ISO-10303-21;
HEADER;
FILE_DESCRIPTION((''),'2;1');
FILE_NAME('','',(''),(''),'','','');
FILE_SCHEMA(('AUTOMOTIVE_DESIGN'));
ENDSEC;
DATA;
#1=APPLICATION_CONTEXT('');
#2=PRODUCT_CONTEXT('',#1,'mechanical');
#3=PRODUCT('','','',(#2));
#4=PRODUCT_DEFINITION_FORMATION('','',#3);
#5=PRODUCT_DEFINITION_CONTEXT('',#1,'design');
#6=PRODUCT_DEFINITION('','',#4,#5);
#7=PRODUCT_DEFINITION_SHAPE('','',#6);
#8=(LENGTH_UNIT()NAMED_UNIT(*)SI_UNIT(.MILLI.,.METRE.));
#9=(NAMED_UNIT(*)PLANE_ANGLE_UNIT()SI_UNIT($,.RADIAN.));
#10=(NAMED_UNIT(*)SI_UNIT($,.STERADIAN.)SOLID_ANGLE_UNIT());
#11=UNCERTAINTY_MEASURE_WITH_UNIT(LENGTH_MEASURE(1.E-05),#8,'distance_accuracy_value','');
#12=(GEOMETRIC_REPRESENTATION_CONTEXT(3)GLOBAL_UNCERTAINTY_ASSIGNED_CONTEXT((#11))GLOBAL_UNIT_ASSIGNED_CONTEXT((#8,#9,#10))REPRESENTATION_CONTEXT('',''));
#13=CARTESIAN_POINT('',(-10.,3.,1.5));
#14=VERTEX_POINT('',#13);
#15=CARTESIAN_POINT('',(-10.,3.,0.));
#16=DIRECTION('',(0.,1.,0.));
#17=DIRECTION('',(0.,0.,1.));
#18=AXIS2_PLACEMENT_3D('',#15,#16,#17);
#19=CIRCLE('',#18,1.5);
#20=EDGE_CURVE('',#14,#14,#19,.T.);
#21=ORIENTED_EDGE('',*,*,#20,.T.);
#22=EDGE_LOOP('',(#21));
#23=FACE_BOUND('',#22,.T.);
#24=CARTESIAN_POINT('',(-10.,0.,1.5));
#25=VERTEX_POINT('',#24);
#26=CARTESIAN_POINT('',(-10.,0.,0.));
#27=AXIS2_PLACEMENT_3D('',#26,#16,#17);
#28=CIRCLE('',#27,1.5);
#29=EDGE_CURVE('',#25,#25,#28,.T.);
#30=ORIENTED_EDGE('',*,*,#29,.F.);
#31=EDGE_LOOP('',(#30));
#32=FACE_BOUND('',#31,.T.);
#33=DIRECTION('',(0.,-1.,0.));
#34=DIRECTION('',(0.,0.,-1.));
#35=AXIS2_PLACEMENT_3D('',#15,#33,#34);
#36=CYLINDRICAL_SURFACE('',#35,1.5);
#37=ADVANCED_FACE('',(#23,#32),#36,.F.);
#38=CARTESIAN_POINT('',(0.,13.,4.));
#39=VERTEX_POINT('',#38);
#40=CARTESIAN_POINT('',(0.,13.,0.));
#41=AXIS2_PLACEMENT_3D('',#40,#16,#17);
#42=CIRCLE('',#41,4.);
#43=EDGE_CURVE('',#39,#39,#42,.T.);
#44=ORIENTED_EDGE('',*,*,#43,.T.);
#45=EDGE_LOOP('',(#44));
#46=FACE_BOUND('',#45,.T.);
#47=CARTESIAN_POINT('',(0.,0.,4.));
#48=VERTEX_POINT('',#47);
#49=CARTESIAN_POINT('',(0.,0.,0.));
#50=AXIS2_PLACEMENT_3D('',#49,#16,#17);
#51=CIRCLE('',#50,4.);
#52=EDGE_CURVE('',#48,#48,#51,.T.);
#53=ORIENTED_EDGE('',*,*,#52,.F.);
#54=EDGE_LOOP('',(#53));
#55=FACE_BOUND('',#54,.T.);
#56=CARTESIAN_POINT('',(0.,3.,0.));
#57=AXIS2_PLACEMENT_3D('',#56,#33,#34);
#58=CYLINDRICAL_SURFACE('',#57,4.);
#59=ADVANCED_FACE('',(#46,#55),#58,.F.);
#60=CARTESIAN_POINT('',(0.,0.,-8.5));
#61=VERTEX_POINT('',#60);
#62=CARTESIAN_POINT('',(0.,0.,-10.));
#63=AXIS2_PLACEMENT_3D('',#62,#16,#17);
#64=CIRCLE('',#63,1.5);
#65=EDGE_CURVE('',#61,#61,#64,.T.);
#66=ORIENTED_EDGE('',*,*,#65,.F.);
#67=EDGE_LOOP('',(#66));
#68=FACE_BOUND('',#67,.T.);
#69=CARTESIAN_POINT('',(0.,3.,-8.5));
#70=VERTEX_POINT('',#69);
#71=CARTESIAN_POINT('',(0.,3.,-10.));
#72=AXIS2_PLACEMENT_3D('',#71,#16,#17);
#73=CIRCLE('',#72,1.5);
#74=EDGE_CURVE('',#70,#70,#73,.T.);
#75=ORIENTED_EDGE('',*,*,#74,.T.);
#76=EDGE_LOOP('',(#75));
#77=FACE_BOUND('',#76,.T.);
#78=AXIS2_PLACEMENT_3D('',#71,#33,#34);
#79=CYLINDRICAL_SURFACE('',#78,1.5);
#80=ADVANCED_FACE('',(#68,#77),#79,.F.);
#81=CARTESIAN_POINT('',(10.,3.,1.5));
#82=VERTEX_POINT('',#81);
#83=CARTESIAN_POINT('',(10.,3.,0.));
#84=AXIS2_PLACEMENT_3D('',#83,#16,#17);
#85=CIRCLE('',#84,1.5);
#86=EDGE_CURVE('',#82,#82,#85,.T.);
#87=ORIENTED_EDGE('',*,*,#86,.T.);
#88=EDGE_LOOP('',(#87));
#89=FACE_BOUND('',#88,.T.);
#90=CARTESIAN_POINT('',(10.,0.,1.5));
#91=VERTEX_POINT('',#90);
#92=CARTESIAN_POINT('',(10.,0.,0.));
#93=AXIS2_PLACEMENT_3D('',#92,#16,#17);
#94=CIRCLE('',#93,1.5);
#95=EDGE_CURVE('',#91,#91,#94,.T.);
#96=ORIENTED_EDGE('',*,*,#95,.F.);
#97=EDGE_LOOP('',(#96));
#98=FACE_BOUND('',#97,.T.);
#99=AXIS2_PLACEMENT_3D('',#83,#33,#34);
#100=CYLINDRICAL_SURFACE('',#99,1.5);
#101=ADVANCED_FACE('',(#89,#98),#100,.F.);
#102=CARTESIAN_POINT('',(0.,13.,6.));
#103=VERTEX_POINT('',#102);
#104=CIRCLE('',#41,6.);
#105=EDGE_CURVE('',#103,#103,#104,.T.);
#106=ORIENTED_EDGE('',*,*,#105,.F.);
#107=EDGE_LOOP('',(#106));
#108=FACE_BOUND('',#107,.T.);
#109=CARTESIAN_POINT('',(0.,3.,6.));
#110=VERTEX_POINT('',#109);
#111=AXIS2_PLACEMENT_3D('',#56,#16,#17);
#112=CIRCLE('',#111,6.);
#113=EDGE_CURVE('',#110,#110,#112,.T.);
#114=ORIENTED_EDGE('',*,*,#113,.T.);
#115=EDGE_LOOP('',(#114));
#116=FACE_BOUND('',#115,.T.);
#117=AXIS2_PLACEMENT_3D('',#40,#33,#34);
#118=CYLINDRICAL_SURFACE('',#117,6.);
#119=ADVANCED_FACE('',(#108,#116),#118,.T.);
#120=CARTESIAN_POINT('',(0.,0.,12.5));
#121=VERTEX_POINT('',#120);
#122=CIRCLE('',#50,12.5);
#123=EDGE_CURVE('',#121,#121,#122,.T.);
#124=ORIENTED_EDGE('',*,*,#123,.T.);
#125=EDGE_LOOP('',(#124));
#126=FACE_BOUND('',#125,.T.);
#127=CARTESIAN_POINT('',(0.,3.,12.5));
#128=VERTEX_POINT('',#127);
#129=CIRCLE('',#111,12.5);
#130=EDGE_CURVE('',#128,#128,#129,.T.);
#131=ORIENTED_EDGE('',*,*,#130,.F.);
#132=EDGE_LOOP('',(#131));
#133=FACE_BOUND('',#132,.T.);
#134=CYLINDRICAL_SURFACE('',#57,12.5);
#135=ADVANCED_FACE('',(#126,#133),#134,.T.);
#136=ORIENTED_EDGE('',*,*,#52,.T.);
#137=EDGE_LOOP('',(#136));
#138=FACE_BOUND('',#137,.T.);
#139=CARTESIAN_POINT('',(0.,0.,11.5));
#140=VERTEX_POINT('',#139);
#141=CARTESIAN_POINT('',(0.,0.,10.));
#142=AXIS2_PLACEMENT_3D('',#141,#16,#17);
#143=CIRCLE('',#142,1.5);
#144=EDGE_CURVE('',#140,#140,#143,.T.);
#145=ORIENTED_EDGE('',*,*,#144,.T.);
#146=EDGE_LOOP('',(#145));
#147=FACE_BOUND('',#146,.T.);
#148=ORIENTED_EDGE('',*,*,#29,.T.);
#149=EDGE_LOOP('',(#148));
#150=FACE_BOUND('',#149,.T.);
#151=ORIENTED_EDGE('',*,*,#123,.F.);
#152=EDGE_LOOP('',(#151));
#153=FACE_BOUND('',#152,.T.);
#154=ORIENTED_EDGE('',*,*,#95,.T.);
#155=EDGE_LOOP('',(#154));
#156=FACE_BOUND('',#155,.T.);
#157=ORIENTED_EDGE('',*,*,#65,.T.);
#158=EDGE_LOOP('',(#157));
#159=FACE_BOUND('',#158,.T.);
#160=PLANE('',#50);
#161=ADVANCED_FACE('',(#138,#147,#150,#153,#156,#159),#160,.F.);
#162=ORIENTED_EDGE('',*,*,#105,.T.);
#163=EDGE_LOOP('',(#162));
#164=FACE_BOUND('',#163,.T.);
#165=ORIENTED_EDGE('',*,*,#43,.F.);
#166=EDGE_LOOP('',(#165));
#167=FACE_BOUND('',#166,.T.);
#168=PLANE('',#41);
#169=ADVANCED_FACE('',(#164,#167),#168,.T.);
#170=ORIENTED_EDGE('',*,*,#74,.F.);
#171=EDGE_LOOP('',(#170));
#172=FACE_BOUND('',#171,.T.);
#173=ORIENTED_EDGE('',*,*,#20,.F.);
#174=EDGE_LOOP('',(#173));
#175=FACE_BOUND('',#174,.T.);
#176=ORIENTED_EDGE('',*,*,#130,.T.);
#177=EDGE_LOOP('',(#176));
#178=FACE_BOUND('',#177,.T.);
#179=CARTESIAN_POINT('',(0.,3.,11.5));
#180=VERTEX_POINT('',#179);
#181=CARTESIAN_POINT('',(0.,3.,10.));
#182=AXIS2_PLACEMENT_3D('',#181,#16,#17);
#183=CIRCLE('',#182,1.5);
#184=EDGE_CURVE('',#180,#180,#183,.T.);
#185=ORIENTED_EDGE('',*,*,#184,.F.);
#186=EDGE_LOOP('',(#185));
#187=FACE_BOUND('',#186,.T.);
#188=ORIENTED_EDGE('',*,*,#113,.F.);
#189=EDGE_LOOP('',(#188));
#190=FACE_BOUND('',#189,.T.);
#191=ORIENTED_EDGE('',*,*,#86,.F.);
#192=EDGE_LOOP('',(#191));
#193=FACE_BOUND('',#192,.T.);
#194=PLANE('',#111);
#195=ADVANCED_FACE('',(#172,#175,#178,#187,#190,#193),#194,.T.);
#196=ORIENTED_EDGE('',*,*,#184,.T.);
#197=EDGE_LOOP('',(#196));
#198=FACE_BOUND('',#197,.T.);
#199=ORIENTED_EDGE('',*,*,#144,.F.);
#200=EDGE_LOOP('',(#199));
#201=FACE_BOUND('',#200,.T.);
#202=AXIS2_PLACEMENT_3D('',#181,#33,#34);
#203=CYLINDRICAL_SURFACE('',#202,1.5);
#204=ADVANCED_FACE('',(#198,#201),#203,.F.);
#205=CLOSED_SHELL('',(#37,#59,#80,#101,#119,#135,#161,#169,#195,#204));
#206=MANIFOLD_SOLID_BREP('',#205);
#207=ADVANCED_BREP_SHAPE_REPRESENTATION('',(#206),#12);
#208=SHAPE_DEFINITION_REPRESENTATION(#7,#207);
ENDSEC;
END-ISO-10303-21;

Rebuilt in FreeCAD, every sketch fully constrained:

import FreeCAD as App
import Part
import Sketcher
from FreeCAD import Vector
Q = App.Units.Quantity

doc = App.newDocument("Part")
params = doc.addObject("Spreadsheet::Sheet", "Params")
for row, (alias, value) in enumerate([
    ("sketch1_diameter", "25 mm"),
    ("sketch1_diameter2", "3 mm"),
    ("sketch1_diameter3", "8 mm"),
    ("pad1_length", "3 mm"),
    ("sketch2_diameter", "12 mm"),
    ("sketch2_diameter2", "8 mm"),
    ("pad2_length", "10 mm"),
], start=1):
    params.set(f"A{row}", alias)
    params.set(f"B{row}", "=" + value)
    params.setAlias(f"B{row}", alias)

body = doc.addObject("PartDesign::Body", "Body")

# Sketch on XZ plane
sketch1 = body.newObject("Sketcher::SketchObject", "Sketch")
sketch1.AttachmentSupport = (doc.getObject("XZ_Plane"), [""])
sketch1.MapMode = "FlatFace"
sketch1.addGeometry(Part.Circle(Vector(0, 0, 0), Vector(0, 0, 1), 12.5), False)
sketch1.addGeometry(Part.Circle(Vector(0, -10, 0), Vector(0, 0, 1), 1.5), False)
sketch1.addGeometry(Part.Circle(Vector(-10, 0, 0), Vector(0, 0, 1), 1.5), False)
sketch1.addGeometry(Part.Circle(Vector(10, 0, 0), Vector(0, 0, 1), 1.5), False)
sketch1.addGeometry(Part.Circle(Vector(0, 10, 0), Vector(0, 0, 1), 1.5), False)
sketch1.addGeometry(Part.Circle(Vector(0, 0, 0), Vector(0, 0, 1), 4), False)
sketch1.addConstraint(Sketcher.Constraint("Coincident", 0, 3, -1, 1))
sketch1.addConstraint(Sketcher.Constraint("Coincident", 5, 3, -1, 1))
sketch1.addConstraint(Sketcher.Constraint("Equal", 1, 2))
sketch1.addConstraint(Sketcher.Constraint("Equal", 2, 3))
sketch1.addConstraint(Sketcher.Constraint("Equal", 3, 4))
sketch1.addConstraint(Sketcher.Constraint("Symmetric", 2, 3, 3, 3, -1, 1))
sketch1.addConstraint(Sketcher.Constraint("Symmetric", 1, 3, 4, 3, -1, 1))
sketch1.addConstraint(Sketcher.Constraint("PointOnObject", 1, 3, -2))
sketch1.addConstraint(Sketcher.Constraint("PointOnObject", 2, 3, -1))
sketch1.addConstraint(Sketcher.Constraint("Diameter", 0, Q("25 mm")))
sketch1.addConstraint(Sketcher.Constraint("Diameter", 1, Q("3 mm")))
sketch1.addConstraint(Sketcher.Constraint("Diameter", 5, Q("8 mm")))
sketch1.addConstraint(Sketcher.Constraint("DistanceY", 1, 3, -1, 1, Q("10 mm")))
sketch1.addConstraint(Sketcher.Constraint("DistanceX", 2, 3, -1, 1, Q("10 mm")))
sketch1.setExpression("Constraints[9]", "Params.sketch1_diameter")
sketch1.setExpression("Constraints[10]", "Params.sketch1_diameter2")
sketch1.setExpression("Constraints[11]", "Params.sketch1_diameter3")
pad1 = body.newObject("PartDesign::Pad", "Pad")
pad1.Profile = sketch1
pad1.setExpression("Length", "Params.pad1_length")
pad1.Reversed = True

# Sketch on XZ plane
sketch2 = body.newObject("Sketcher::SketchObject", "Sketch001")
sketch2.AttachmentSupport = (doc.getObject("XZ_Plane"), [""])
sketch2.MapMode = "FlatFace"
sketch2.AttachmentOffset = App.Placement(Vector(0, 0, -3), App.Rotation())
sketch2.addGeometry(Part.Circle(Vector(0, 0, 0), Vector(0, 0, 1), 6), False)
sketch2.addGeometry(Part.Circle(Vector(0, 0, 0), Vector(0, 0, 1), 4), False)
sketch2.addConstraint(Sketcher.Constraint("Coincident", 0, 3, -1, 1))
sketch2.addConstraint(Sketcher.Constraint("Coincident", 1, 3, -1, 1))
sketch2.addConstraint(Sketcher.Constraint("Diameter", 0, Q("12 mm")))
sketch2.addConstraint(Sketcher.Constraint("Diameter", 1, Q("8 mm")))
sketch2.setExpression("Constraints[2]", "Params.sketch2_diameter")
sketch2.setExpression("Constraints[3]", "Params.sketch2_diameter2")
pad2 = body.newObject("PartDesign::Pad", "Pad001")
pad2.Profile = sketch2
pad2.setExpression("Length", "Params.pad2_length")
pad2.Reversed = True

doc.recompute()
